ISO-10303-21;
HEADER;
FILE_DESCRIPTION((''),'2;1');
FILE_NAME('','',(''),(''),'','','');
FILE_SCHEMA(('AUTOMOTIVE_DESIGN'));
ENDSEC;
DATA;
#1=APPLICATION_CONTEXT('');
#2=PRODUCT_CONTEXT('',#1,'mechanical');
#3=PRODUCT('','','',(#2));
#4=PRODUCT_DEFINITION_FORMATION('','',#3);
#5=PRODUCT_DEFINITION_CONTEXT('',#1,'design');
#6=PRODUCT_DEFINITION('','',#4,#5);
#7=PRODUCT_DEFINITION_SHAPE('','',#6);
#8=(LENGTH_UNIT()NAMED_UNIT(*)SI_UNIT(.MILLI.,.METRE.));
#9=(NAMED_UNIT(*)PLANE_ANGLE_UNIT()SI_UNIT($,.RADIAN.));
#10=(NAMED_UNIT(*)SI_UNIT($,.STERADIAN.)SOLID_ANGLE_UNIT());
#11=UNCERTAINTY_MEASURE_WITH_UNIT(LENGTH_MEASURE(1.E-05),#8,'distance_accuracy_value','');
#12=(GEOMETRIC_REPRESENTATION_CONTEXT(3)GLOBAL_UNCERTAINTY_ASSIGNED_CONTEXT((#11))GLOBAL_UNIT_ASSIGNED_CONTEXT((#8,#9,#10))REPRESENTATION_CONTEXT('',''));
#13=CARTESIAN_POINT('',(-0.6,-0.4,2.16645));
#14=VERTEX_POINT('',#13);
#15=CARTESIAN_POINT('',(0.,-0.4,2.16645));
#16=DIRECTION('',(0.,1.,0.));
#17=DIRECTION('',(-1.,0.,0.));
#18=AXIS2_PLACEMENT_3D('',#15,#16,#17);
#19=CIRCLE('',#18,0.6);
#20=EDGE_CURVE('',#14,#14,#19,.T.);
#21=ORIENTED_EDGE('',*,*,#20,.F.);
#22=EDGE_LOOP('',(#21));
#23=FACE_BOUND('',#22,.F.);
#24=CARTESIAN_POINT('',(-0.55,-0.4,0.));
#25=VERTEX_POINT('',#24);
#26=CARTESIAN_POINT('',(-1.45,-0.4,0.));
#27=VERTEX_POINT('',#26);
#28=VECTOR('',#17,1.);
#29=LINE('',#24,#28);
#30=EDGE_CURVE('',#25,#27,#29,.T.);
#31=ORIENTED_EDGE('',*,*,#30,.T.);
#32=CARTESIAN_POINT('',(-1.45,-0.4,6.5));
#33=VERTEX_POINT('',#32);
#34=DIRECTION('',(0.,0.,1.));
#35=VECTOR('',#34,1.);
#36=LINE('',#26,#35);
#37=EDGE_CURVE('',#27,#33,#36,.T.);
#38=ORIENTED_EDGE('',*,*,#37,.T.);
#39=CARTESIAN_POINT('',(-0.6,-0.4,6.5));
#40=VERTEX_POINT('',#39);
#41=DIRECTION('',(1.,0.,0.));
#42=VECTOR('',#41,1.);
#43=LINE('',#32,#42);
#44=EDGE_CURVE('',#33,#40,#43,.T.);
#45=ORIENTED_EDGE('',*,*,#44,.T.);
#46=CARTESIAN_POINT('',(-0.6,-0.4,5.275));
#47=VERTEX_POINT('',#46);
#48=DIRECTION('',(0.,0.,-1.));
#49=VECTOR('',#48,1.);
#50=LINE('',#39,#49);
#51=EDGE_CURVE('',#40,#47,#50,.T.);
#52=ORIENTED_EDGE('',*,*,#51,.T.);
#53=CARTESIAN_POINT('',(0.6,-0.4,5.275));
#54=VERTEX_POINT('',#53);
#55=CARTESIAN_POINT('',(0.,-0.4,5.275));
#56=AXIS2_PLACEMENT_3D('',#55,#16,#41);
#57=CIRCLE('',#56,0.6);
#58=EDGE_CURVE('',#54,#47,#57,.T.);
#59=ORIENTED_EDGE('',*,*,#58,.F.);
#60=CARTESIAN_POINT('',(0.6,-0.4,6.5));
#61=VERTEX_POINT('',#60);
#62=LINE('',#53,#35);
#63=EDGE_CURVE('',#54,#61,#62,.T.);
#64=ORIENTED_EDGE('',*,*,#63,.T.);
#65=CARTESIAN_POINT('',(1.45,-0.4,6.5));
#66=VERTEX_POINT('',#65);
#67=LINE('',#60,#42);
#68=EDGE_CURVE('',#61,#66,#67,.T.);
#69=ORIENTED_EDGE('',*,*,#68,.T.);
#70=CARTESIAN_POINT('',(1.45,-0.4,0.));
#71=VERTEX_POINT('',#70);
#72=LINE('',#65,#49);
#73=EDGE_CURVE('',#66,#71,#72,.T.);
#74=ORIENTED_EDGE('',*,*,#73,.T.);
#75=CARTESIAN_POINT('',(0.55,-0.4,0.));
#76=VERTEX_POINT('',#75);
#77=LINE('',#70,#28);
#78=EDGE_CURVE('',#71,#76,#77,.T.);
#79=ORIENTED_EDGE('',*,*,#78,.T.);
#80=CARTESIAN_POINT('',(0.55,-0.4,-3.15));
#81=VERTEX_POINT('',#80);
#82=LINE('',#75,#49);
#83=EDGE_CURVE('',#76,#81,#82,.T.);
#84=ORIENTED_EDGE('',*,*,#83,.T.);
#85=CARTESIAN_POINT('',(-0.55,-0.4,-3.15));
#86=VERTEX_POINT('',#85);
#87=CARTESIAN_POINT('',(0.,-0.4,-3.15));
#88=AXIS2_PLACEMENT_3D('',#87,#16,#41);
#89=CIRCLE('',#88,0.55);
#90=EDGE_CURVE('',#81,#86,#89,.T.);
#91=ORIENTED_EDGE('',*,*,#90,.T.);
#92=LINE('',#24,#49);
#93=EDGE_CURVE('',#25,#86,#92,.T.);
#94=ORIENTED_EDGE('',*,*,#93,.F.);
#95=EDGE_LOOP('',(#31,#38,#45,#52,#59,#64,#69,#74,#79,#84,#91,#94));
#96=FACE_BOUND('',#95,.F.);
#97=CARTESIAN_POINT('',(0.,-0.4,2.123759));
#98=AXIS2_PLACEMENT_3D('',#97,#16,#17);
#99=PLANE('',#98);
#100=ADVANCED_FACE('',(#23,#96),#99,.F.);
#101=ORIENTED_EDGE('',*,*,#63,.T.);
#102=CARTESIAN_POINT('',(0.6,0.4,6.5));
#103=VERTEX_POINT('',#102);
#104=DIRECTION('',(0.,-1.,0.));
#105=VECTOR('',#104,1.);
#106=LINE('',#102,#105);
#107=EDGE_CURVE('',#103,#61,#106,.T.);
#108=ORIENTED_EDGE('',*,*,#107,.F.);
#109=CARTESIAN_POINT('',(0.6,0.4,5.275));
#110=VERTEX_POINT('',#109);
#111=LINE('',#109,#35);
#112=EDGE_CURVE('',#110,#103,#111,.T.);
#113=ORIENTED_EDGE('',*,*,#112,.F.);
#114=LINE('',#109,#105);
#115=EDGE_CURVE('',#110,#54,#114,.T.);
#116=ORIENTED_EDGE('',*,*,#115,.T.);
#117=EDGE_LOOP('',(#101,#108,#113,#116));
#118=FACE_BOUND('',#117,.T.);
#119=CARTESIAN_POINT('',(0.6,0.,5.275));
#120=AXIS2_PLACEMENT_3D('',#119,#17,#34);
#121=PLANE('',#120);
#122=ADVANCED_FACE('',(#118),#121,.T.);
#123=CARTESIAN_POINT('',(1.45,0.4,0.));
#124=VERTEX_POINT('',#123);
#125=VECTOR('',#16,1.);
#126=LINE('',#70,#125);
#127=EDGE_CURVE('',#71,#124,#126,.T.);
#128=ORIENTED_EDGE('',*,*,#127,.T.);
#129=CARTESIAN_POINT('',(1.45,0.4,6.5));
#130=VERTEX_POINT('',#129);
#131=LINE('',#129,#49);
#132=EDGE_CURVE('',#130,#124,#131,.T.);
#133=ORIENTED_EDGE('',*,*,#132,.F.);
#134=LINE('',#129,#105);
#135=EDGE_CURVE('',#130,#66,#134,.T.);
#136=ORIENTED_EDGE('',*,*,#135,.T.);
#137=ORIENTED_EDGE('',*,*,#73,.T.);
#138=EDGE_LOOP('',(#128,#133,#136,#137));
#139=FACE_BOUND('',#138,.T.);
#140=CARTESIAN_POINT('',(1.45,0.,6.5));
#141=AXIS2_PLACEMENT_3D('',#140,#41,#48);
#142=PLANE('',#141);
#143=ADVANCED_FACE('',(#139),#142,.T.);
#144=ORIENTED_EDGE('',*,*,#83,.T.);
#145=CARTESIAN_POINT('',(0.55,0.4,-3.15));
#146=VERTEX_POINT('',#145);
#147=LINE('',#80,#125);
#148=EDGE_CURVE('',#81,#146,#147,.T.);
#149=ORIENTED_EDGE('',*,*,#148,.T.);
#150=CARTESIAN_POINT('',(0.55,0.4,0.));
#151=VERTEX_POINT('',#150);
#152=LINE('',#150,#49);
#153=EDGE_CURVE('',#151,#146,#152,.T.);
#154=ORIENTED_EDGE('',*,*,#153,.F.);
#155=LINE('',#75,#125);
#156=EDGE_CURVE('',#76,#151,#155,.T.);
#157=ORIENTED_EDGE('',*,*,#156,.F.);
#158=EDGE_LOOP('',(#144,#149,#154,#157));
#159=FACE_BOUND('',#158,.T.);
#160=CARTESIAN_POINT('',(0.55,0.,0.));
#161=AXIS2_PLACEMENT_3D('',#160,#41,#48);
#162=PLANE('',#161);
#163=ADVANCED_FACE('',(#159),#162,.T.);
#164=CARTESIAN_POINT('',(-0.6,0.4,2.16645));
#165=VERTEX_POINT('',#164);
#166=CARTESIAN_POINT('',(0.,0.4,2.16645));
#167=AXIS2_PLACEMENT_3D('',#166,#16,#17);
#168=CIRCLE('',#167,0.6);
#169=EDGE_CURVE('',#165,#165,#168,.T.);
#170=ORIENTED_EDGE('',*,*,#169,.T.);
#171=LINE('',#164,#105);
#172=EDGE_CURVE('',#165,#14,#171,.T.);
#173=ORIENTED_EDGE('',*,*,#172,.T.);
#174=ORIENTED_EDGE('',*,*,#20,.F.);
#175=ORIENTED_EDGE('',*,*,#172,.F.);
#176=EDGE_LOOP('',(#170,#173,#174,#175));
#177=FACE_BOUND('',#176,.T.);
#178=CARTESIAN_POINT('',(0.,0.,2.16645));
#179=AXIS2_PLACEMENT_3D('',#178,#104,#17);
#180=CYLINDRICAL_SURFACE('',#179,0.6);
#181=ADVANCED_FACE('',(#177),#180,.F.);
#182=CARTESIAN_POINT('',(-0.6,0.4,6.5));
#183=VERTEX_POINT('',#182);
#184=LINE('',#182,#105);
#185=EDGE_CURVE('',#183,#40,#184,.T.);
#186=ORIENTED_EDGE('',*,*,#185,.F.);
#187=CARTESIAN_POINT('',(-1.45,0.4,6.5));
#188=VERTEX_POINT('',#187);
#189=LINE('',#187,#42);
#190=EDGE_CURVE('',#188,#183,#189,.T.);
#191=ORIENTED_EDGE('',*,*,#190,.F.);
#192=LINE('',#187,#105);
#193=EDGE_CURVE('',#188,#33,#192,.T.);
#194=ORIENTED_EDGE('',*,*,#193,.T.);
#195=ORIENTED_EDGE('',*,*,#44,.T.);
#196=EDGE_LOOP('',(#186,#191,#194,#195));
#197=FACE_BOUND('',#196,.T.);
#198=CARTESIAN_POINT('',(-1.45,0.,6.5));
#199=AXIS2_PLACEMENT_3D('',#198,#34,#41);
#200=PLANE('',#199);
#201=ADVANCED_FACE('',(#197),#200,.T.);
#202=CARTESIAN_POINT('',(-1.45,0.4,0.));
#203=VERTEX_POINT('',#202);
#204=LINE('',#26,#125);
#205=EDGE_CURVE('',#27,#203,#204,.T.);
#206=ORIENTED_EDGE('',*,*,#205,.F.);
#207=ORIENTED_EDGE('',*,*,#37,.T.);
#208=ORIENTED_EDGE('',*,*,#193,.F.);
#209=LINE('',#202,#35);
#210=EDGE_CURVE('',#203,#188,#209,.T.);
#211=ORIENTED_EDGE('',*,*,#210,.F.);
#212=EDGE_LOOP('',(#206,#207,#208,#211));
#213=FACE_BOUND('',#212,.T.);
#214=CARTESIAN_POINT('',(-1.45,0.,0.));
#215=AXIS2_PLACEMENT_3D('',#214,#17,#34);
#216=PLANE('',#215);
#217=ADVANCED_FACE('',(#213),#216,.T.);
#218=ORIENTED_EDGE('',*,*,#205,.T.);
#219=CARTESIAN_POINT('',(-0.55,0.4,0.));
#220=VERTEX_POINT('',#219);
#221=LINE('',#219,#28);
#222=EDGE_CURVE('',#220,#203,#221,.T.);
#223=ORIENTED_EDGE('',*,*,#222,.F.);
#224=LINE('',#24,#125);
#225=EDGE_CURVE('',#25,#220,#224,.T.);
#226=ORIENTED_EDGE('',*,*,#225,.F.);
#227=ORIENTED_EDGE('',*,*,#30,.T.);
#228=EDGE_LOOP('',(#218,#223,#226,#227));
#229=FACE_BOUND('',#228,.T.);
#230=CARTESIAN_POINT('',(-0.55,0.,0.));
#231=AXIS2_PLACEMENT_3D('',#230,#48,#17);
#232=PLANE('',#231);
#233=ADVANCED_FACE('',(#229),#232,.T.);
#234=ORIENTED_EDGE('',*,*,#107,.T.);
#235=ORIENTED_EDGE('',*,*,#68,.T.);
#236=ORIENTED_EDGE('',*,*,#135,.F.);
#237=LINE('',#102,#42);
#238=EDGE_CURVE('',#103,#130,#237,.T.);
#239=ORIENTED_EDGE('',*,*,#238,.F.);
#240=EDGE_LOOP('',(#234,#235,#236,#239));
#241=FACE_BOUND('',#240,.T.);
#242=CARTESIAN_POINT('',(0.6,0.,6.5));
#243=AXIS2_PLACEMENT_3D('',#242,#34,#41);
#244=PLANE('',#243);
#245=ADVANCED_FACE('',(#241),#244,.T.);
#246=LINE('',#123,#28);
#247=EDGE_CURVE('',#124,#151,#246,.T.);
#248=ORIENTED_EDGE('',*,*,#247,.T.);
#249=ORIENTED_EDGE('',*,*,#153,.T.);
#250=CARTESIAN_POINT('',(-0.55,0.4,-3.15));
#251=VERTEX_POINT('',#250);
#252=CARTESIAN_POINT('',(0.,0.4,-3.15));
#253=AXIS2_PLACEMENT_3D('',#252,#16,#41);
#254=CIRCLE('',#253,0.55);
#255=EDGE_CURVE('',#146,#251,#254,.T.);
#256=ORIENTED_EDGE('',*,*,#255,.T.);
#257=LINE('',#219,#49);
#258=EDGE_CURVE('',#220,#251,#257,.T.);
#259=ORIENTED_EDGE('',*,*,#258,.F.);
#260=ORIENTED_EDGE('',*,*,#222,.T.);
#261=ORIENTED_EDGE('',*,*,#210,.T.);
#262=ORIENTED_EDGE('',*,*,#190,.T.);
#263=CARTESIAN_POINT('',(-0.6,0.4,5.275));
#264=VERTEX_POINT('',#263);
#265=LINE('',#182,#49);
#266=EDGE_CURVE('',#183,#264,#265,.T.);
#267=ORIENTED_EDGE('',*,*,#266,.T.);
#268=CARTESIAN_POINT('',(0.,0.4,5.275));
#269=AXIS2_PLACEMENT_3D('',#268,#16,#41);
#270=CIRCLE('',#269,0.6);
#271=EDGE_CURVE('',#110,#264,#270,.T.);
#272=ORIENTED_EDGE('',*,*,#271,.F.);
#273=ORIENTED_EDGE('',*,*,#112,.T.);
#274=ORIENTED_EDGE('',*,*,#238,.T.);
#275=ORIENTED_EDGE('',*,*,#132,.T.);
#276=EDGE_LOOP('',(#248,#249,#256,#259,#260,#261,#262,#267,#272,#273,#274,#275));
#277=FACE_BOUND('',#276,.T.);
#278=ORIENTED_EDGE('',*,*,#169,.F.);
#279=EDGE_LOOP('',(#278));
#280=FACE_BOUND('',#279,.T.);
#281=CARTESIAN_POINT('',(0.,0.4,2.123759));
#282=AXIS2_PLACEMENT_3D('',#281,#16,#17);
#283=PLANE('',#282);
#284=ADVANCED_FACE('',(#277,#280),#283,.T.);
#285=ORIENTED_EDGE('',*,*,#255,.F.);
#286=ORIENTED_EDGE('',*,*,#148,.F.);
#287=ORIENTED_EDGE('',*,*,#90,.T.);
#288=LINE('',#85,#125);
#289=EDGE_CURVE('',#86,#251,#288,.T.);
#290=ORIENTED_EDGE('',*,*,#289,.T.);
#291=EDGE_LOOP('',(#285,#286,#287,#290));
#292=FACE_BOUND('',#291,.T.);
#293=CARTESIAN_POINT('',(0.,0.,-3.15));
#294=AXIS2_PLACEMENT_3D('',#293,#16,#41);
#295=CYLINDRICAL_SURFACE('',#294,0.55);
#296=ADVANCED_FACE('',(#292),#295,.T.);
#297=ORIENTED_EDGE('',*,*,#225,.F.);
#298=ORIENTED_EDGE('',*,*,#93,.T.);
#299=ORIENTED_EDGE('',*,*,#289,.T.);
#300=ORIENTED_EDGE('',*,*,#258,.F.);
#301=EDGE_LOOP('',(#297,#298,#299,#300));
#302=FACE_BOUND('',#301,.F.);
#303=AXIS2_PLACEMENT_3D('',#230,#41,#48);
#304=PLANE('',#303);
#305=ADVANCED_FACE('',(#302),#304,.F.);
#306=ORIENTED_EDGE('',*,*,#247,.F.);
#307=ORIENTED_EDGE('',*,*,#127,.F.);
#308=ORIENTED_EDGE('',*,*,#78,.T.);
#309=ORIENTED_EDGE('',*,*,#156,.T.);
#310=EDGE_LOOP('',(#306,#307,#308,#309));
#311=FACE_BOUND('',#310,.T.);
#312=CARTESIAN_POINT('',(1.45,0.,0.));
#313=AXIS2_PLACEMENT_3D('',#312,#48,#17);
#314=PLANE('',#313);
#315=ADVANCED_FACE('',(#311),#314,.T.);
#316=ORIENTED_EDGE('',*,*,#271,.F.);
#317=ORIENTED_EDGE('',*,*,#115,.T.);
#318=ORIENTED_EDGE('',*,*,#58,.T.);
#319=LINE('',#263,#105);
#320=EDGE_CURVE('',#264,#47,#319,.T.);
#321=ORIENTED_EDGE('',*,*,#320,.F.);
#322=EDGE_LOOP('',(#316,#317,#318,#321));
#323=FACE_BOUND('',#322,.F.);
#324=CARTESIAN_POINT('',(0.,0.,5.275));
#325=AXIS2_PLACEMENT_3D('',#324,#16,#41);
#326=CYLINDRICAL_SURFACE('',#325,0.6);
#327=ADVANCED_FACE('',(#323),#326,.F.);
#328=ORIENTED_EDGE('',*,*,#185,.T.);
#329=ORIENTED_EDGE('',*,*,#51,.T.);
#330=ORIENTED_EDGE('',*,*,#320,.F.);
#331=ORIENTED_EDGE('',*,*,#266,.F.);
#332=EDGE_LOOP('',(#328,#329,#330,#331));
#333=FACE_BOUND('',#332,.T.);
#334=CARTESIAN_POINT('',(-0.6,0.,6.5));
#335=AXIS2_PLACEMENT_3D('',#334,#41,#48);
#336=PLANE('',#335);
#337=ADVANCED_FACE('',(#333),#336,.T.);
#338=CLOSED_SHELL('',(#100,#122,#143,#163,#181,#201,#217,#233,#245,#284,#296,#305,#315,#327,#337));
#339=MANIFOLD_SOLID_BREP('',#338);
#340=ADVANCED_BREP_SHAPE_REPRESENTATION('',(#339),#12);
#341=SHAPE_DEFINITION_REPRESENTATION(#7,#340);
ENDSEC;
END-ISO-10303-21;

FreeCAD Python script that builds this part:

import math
import FreeCAD as App
import Part
import Sketcher
from FreeCAD import Vector

doc = App.newDocument("Part")
params = doc.addObject("Spreadsheet::Sheet", "Params")
for row, (alias, value) in enumerate([
    ("sketch1_diameter", "1.2 mm"),
    ("sketch1_radius", "0.55 mm"),
    ("sketch1_width", "0.9 mm"),
    ("sketch1_height", "6.5 mm"),
    ("sketch1_height2", "3.15 mm"),
    ("pad1_length", "0.8 mm"),
], start=1):
    params.set(f"A{row}", alias)
    params.set(f"B{row}", "=" + value)
    params.setAlias(f"B{row}", alias)

body = doc.addObject("PartDesign::Body", "Body")

sketch1 = body.newObject("Sketcher::SketchObject", "Sketch")
sketch1.AttachmentSupport = (doc.getObject("XZ_Plane"), [""])
sketch1.MapMode = "FlatFace"
sketch1.addGeometry([
    Part.LineSegment(Vector(1.4, 6.5, 0), Vector(1.4, 0, 0)),
    Part.LineSegment(Vector(1.4, 0, 0), Vector(0.6, 0, 0)),
    Part.LineSegment(Vector(0.6, 0, 0), Vector(0.6, -3.1, 0)),
    Part.ArcOfCircle(Part.Circle(Vector(0, -3.1, 0), Vector(0, 0, 1), 0.6), math.radians(180), math.radians(360)),
    Part.LineSegment(Vector(-0.6, -3.1, 0), Vector(-0.6, 0, 0)),
    Part.LineSegment(Vector(-0.6, 0, 0), Vector(-1.4, 0, 0)),
    Part.LineSegment(Vector(-1.4, 0, 0), Vector(-1.4, 6.5, 0)),
    Part.LineSegment(Vector(-1.4, 6.5, 0), Vector(-0.6, 6.5, 0)),
    Part.LineSegment(Vector(-0.6, 6.5, 0), Vector(-0.6, 5.3, 0)),
    Part.ArcOfCircle(Part.Circle(Vector(0, 5.3, 0), Vector(0, 0, 1), 0.6), math.radians(180), math.radians(360)),
    Part.LineSegment(Vector(0.6, 5.3, 0), Vector(0.6, 6.5, 0)),
    Part.LineSegment(Vector(0.6, 6.5, 0), Vector(1.4, 6.5, 0)),
    Part.Circle(Vector(0, 2.2, 0), Vector(0, 0, 1), 0.6),
], False)
sketch1.addConstraint([
    Sketcher.Constraint("Coincident", 0, 2, 1, 1),
    Sketcher.Constraint("Coincident", 1, 2, 2, 1),
    Sketcher.Constraint("Tangent", 2, 2, 3, 2),
    Sketcher.Constraint("Tangent", 3, 1, 4, 1),
    Sketcher.Constraint("Coincident", 4, 2, 5, 1),
    Sketcher.Constraint("Coincident", 5, 2, 6, 1),
    Sketcher.Constraint("Coincident", 6, 2, 7, 1),
    Sketcher.Constraint("Coincident", 7, 2, 8, 1),
    Sketcher.Constraint("Tangent", 8, 2, 9, 1),
    Sketcher.Constraint("Tangent", 9, 2, 10, 1),
    Sketcher.Constraint("Coincident", 10, 2, 11, 1),
    Sketcher.Constraint("Coincident", 11, 2, 0, 1),
    Sketcher.Constraint("Vertical", 0),
    Sketcher.Constraint("Horizontal", 1),
    Sketcher.Constraint("Vertical", 2),
    Sketcher.Constraint("Vertical", 4),
    Sketcher.Constraint("Horizontal", 5),
    Sketcher.Constraint("Vertical", 6),
    Sketcher.Constraint("Horizontal", 7),
    Sketcher.Constraint("Vertical", 8),
    Sketcher.Constraint("Vertical", 10),
    Sketcher.Constraint("Horizontal", 11),
    Sketcher.Constraint("Equal", 9, 12),
    Sketcher.Constraint("Symmetric", 1, 2, 4, 2, -1, 1),
    Sketcher.Constraint("Symmetric", 0, 2, 5, 2, -2),
    Sketcher.Constraint("Symmetric", 7, 2, 10, 2, -2),
    Sketcher.Constraint("PointOnObject", 12, 3, -2),
    Sketcher.Constraint("Diameter", 12, 1.2),
    Sketcher.Constraint("Radius", 3, 0.55),
    Sketcher.Constraint("DistanceX", 1, 2, 1, 1, 0.9),
    Sketcher.Constraint("DistanceY", 0, 2, 0, 1, 6.5),
    Sketcher.Constraint("DistanceY", 2, 2, 2, 1, 3.15),
    Sketcher.Constraint("DistanceY", 8, 2, 8, 1, 1.225),
    Sketcher.Constraint("DistanceY", -1, 1, 12, 3, 2.16645),
])
sketch1.setExpression("Constraints[27]", "Params.sketch1_diameter")
sketch1.setExpression("Constraints[28]", "Params.sketch1_radius")
sketch1.setExpression("Constraints[29]", "Params.sketch1_width")
sketch1.setExpression("Constraints[30]", "Params.sketch1_height")
sketch1.setExpression("Constraints[31]", "Params.sketch1_height2")
pad1 = body.newObject("PartDesign::Pad", "Pad")
pad1.Profile = sketch1
pad1.setExpression("Length", "Params.pad1_length")
pad1.Midplane = True

doc.recompute()
